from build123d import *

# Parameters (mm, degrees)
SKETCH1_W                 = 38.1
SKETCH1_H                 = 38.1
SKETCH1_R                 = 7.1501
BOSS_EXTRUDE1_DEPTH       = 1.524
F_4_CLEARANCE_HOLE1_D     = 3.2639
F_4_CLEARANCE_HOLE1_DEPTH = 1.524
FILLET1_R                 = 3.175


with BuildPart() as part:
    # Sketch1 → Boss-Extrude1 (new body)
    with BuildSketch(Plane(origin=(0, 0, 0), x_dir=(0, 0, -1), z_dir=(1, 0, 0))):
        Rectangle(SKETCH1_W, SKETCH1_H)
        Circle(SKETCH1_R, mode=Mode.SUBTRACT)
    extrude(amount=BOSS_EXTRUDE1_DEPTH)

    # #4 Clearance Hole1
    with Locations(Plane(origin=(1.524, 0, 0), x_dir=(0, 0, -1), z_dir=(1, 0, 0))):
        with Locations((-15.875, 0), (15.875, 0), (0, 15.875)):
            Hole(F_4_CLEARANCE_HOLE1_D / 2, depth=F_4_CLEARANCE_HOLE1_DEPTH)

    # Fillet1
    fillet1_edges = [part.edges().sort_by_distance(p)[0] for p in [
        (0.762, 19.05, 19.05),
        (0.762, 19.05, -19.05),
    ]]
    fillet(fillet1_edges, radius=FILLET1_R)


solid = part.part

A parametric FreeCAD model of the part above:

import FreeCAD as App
import Part
import Sketcher

V = App.Vector
Q = App.Units.Quantity


def edges_at(feature, points):
    """Names of the edges that pass closest to the given points."""
    edges = feature.Shape.Edges
    near = lambda p: min(range(len(edges)), key=lambda i: edges[i].distToShape(Part.Vertex(*p))[0])
    return sorted({f"Edge{near(p) + 1}" for p in points})


def add_polygon(sketch, points):
    """Adds a closed chain of lines whose ends are joined by coincident constraints."""
    first, n = sketch.GeometryCount, len(points)
    for a, b in zip(points, points[1:] + points[:1]):
        sketch.addGeometry(Part.LineSegment(App.Vector(*a, 0), App.Vector(*b, 0)), False)
    for i in range(n):
        sketch.addConstraint(Sketcher.Constraint("Coincident", first + i, 2, first + (i + 1) % n, 1))

doc = App.newDocument("Part")
params = doc.addObject("Spreadsheet::Sheet", "Params")
for row, (alias, value) in enumerate([
    ("sketch1_diameter", "0.563 in"),
    ("sketch1_width", "1.5 in"),
    ("pad1_length", "0.06 in"),
    ("hole_diameter", "0.1285 in"),
    ("hole_depth", "0.06 in"),
    ("fillet_radius", "0.125 in"),
], start=1):
    params.set(f"A{row}", alias)
    params.set(f"B{row}", "=" + value)
    params.setAlias(f"B{row}", alias)

body = doc.addObject("PartDesign::Body", "Body")

# Sketch on YZ plane
sketch1 = body.newObject("Sketcher::SketchObject", "Sketch")
sketch1.AttachmentSupport = (doc.getObject("YZ_Plane"), [""])
sketch1.MapMode = "FlatFace"
add_polygon(sketch1, [(19, 19), (-19, 19), (-19, -19), (19, -19)])  # lines 0-3
sketch1.addGeometry(Part.Circle(V(0, 0, 0), V(0, 0, 1), 7), False)  # 4
sketch1.addConstraint([
    Sketcher.Constraint("Horizontal", 0),
    Sketcher.Constraint("Vertical", 1),
    Sketcher.Constraint("Horizontal", 2),
    Sketcher.Constraint("Vertical", 3),
    Sketcher.Constraint("Coincident", 4, 3, -1, 1),
    Sketcher.Constraint("Symmetric", 0, 2, 2, 2, -1, 1),
    Sketcher.Constraint("Equal", 2, 1),
    Sketcher.Constraint("Diameter", 4, Q("0.563 in")),
    Sketcher.Constraint("DistanceX", 0, 2, 0, 1, Q("1.5 in")),
])
sketch1.setExpression("Constraints[11]", "Params.sketch1_diameter")
sketch1.setExpression("Constraints[12]", "Params.sketch1_width")
pad1 = body.newObject("PartDesign::Pad", "Pad")
pad1.Profile = sketch1
pad1.setExpression("Length", "Params.pad1_length")

# Sketch on YZ plane
sketch2 = body.newObject("Sketcher::SketchObject", "Sketch001")
sketch2.AttachmentSupport = (doc.getObject("YZ_Plane"), [""])
sketch2.MapMode = "FlatFace"
sketch2.AttachmentOffset = App.Placement(V(0, 0, 0.06 * 25.4), App.Rotation())
sketch2.addGeometry([
    Part.Circle(V(0, 15.9, 0), V(0, 0, 1), 1.6),
    Part.Circle(V(0, -15.9, 0), V(0, 0, 1), 1.6),
    Part.Circle(V(15.9, 0, 0), V(0, 0, 1), 1.6),
], False)
sketch2.addConstraint([
    Sketcher.Constraint("Equal", 0, 1),
    Sketcher.Constraint("Equal", 1, 2),
    Sketcher.Constraint("Symmetric", 0, 3, 1, 3, -1, 1),
    Sketcher.Constraint("PointOnObject", 0, 3, -2),
    Sketcher.Constraint("PointOnObject", 2, 3, -1),
    Sketcher.Constraint("Diameter", 0, Q("0.1285 in")),
    Sketcher.Constraint("DistanceY", 1, 3, 0, 3, Q("1.25 in")),
    Sketcher.Constraint("DistanceX", -1, 1, 2, 3, Q("0.625 in")),
])
doc.recompute()
hole = body.newObject("PartDesign::Hole", "Hole")
hole.Profile = sketch2
hole.ThreadType = "None"
hole.setExpression("Diameter", "Params.hole_diameter")
hole.DepthType = "Dimension"
hole.setExpression("Depth", "Params.hole_depth")
hole.DrillPoint = "Flat"
doc.recompute()

fillet = body.newObject("PartDesign::Fillet", "Fillet")
fillet.Base = (hole, edges_at(hole, [(0.762, 19.05, 19.05), (0.762, 19.05, -19.05)]))
fillet.setExpression("Radius", "Params.fillet_radius")

doc.recompute()
